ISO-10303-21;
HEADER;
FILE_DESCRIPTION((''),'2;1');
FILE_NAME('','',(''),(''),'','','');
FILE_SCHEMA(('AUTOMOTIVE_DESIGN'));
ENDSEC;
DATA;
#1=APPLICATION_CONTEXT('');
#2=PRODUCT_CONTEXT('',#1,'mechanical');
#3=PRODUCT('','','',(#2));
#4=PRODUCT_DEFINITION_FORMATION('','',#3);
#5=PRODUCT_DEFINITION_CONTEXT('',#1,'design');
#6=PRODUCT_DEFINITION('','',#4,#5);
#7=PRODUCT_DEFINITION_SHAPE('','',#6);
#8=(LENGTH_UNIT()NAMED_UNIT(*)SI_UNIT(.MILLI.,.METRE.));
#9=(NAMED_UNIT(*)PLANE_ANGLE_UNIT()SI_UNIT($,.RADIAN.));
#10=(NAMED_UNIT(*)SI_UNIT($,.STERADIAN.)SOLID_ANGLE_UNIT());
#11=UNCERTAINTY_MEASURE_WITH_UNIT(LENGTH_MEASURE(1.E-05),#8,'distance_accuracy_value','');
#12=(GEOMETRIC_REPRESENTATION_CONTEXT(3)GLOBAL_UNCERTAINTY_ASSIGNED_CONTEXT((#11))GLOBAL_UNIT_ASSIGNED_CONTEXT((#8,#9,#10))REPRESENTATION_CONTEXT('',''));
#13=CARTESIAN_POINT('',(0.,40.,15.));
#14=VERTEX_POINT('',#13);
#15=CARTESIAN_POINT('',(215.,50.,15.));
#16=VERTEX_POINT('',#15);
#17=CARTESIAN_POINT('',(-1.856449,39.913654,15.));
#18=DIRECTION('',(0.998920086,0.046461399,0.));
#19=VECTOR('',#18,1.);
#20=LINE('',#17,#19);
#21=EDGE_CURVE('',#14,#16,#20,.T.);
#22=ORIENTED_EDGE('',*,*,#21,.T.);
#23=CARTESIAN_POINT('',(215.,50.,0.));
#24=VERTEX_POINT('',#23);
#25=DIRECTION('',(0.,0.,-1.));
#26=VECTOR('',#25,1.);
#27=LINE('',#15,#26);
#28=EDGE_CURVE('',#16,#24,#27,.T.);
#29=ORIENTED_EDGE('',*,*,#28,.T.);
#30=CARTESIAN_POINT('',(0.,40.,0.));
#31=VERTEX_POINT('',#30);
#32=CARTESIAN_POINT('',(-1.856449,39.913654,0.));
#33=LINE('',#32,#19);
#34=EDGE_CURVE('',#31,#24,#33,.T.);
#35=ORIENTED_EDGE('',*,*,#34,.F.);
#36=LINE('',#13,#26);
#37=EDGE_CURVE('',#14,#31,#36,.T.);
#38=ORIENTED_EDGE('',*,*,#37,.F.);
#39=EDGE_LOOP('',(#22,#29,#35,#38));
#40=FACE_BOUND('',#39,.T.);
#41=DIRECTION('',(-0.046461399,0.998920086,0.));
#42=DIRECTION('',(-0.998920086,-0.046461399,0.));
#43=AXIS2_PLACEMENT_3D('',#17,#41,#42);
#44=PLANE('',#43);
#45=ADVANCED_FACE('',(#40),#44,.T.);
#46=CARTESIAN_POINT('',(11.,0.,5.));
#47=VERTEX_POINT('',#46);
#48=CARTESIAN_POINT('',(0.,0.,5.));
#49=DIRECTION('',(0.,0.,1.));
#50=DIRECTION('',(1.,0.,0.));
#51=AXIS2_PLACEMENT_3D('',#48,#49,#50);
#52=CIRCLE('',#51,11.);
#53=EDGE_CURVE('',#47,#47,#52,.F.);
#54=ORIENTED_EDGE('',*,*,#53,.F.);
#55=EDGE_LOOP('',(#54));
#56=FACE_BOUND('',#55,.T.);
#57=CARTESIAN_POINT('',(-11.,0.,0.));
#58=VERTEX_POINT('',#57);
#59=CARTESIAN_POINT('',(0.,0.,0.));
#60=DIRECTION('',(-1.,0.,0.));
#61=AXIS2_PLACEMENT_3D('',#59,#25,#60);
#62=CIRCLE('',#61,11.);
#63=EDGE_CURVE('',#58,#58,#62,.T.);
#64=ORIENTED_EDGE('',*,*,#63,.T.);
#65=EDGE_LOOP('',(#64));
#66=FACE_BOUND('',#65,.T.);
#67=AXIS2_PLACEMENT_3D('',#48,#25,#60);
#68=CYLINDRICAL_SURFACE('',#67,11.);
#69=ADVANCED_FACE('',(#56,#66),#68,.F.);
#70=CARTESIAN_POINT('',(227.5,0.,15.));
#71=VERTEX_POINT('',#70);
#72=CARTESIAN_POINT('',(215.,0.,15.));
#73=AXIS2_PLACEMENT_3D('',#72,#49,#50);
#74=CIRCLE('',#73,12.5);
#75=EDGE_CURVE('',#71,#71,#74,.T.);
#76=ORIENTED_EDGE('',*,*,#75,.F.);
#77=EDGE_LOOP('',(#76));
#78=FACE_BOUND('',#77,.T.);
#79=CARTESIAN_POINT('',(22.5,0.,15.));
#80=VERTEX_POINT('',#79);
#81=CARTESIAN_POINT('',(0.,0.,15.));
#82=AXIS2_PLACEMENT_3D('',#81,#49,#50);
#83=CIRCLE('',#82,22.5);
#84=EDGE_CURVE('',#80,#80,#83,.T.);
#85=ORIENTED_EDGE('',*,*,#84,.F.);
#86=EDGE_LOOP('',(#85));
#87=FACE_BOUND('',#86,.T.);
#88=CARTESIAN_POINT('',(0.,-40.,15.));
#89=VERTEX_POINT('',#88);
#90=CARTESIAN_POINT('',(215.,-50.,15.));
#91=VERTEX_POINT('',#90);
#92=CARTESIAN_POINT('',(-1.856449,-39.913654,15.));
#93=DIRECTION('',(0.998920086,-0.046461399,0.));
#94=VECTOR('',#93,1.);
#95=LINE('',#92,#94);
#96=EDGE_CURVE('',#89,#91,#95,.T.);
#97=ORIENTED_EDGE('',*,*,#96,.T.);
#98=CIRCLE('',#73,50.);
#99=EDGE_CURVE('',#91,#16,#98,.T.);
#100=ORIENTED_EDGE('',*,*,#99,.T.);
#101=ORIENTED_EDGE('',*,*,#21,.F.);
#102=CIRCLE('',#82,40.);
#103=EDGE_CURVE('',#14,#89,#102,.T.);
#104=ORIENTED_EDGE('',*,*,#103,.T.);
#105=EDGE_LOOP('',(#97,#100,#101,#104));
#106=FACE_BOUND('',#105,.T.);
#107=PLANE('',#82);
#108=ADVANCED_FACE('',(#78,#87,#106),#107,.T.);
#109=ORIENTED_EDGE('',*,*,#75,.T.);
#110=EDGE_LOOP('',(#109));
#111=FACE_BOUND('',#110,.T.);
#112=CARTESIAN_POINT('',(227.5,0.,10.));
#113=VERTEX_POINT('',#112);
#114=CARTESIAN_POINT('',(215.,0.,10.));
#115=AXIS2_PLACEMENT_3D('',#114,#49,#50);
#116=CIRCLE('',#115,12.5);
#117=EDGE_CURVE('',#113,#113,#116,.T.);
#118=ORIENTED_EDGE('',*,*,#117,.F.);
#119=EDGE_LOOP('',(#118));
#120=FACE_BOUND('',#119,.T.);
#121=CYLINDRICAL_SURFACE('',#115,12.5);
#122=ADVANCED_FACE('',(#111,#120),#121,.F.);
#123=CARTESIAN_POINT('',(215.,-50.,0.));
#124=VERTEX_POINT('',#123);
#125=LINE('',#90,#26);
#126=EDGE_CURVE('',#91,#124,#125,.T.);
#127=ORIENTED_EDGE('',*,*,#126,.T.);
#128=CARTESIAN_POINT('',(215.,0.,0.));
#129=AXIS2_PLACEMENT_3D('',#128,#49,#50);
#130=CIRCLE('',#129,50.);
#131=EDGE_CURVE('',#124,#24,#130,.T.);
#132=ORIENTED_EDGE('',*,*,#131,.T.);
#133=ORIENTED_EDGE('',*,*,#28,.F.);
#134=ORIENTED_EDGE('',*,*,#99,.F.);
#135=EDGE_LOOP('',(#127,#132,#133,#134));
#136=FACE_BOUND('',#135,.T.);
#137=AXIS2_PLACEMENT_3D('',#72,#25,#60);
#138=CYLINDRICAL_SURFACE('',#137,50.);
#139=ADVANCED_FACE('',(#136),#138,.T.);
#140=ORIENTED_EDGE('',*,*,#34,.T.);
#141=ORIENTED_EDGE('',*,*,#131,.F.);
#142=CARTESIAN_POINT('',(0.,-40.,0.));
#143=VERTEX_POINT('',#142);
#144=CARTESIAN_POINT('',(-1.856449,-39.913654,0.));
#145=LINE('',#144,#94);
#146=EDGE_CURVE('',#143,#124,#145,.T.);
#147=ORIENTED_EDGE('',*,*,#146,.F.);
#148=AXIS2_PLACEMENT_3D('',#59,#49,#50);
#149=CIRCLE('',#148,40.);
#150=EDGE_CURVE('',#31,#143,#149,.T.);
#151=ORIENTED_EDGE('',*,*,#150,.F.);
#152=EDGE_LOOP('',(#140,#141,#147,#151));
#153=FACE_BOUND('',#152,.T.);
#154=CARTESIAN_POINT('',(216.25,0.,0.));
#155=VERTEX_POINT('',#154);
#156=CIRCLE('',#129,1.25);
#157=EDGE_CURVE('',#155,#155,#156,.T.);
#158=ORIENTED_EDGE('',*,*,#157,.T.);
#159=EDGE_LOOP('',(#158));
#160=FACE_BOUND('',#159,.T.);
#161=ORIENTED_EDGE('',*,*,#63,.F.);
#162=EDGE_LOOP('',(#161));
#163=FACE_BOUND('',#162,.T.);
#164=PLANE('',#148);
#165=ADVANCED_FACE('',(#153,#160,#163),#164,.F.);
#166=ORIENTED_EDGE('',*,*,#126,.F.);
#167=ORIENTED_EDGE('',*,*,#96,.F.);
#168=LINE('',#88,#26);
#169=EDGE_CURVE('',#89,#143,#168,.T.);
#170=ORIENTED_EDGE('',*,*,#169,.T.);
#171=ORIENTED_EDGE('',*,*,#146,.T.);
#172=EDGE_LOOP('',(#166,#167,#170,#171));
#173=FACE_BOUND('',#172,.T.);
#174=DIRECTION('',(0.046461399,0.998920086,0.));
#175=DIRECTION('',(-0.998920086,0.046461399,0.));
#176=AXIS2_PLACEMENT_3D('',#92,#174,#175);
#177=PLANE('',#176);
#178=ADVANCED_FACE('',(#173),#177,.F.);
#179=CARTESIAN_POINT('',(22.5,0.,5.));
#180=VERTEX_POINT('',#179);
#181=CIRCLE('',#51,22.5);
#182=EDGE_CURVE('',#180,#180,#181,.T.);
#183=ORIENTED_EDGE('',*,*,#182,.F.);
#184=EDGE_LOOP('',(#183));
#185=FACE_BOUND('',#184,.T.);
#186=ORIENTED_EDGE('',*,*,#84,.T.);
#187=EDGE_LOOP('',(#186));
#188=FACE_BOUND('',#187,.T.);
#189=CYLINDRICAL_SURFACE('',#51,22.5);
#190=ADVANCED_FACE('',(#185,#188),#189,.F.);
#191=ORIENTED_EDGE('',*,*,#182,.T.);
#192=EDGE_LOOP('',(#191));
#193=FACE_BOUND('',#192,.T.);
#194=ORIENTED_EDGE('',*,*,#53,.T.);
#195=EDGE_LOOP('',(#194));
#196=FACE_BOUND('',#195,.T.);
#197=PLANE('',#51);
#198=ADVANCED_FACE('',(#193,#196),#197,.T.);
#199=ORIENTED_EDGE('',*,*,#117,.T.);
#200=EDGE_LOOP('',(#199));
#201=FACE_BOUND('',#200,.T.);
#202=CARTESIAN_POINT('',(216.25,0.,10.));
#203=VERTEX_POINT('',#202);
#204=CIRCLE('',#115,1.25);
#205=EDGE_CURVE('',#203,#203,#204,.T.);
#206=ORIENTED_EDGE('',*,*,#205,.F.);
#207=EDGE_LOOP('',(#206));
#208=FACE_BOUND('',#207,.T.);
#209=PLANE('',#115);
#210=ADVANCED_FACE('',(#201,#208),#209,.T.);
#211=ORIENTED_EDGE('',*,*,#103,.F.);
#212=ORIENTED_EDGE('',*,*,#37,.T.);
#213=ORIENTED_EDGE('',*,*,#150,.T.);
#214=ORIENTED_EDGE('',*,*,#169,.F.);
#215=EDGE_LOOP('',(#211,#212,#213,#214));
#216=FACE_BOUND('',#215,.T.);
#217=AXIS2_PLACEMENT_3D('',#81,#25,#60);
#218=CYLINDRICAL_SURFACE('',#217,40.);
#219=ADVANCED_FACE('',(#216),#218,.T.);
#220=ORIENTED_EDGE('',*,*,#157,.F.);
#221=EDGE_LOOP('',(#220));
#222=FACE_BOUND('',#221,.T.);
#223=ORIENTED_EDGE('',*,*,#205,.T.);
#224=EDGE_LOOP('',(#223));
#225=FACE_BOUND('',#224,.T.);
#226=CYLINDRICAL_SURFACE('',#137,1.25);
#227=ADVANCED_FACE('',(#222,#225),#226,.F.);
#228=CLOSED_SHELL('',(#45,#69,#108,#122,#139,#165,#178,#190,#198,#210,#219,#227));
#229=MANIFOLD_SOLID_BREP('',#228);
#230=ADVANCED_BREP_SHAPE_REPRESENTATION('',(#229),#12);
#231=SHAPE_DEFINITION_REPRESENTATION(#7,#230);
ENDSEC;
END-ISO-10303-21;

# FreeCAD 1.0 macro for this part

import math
import FreeCAD as App
import Part
import Sketcher

V = App.Vector

doc = App.newDocument("Part")
body = doc.addObject("PartDesign::Body", "Body")

sketch1 = body.newObject("Sketcher::SketchObject", "Sketch")
sketch1.AttachmentSupport = (doc.getObject("XY_Plane"), [""])
sketch1.MapMode = "FlatFace"
sketch1.addGeometry(Part.ArcOfCircle(Part.Circle(V(0, 0, 0), V(0, 0, 1), 40), math.radians(90), math.radians(270)), False)
sketch1.addGeometry(Part.LineSegment(V(0, -40, 0), V(215, -50, 0)), False)
sketch1.addGeometry(Part.ArcOfCircle(Part.Circle(V(215, 0, 0), V(0, 0, 1), 50), math.radians(-90), math.radians(90)), False)
sketch1.addGeometry(Part.LineSegment(V(215, 50, 0), V(0, 40, 0)), False)
sketch1.addGeometry(Part.Circle(V(0, 0, 0), V(0, 0, 1), 1.25), False)
sketch1.addGeometry(Part.Circle(V(215, 0, 0), V(0, 0, 1), 1.25), False)
sketch1.addConstraint(Sketcher.Constraint("Coincident", 0, 2, 1, 1))
sketch1.addConstraint(Sketcher.Constraint("Coincident", 1, 2, 2, 1))
sketch1.addConstraint(Sketcher.Constraint("Coincident", 2, 2, 3, 1))
sketch1.addConstraint(Sketcher.Constraint("Coincident", 3, 2, 0, 1))
sketch1.addConstraint(Sketcher.Constraint("Coincident", 0, 3, -1, 1))
sketch1.addConstraint(Sketcher.Constraint("Coincident", 4, 3, -1, 1))
sketch1.addConstraint(Sketcher.Constraint("Coincident", 5, 3, 2, 3))
sketch1.addConstraint(Sketcher.Constraint("Equal", 4, 5))
sketch1.addConstraint(Sketcher.Constraint("Symmetric", 1, 2, 2, 2, -1))
sketch1.addConstraint(Sketcher.Constraint("PointOnObject", 0, 2, -2))
sketch1.addConstraint(Sketcher.Constraint("PointOnObject", 3, 2, -2))
sketch1.addConstraint(Sketcher.Constraint("Vertical", 5, 3, 1, 2))
sketch1.addConstraint(Sketcher.Constraint("Radius", 0, 40.0))
sketch1.addConstraint(Sketcher.Constraint("Radius", 2, 50.0))
sketch1.addConstraint(Sketcher.Constraint("Diameter", 4, 2.5))
sketch1.addConstraint(Sketcher.Constraint("DistanceX", -1, 1, 2, 3, 215.0))
pad1 = body.newObject("PartDesign::Pad", "Pad")
pad1.Profile = sketch1
pad1.Length = 15

sketch2 = body.newObject("Sketcher::SketchObject", "Sketch001")
sketch2.AttachmentSupport = (doc.getObject("XY_Plane"), [""])
sketch2.MapMode = "FlatFace"
sketch2.addGeometry(Part.Circle(V(0, 0, 0), V(0, 0, 1), 11), False)
sketch2.addConstraint(Sketcher.Constraint("Coincident", 0, 3, -1, 1))
sketch2.addConstraint(Sketcher.Constraint("Diameter", 0, 22.0))
pocket1 = body.newObject("PartDesign::Pocket", "Pocket")
pocket1.Profile = sketch2
pocket1.Length = 5
pocket1.Reversed = True

sketch3 = body.newObject("Sketcher::SketchObject", "Sketch002")
sketch3.AttachmentSupport = (doc.getObject("XY_Plane"), [""])
sketch3.MapMode = "FlatFace"
sketch3.AttachmentOffset = App.Placement(V(0, 0, 15), App.Rotation())
sketch3.addGeometry(Part.Circle(V(215, 0, 0), V(0, 0, 1), 12.5), False)
sketch3.addConstraint(Sketcher.Constraint("PointOnObject", 0, 3, -1))
sketch3.addConstraint(Sketcher.Constraint("Diameter", 0, 25.0))
sketch3.addConstraint(Sketcher.Constraint("DistanceX", -1, 1, 0, 3, 215.0))
pocket2 = body.newObject("PartDesign::Pocket", "Pocket001")
pocket2.Profile = sketch3
pocket2.Length = 5

sketch4 = body.newObject("Sketcher::SketchObject", "Sketch003")
sketch4.AttachmentSupport = (doc.getObject("XY_Plane"), [""])
sketch4.MapMode = "FlatFace"
sketch4.AttachmentOffset = App.Placement(V(0, 0, 15), App.Rotation())
sketch4.addGeometry(Part.Circle(V(0, 0, 0), V(0, 0, 1), 22.5), False)
sketch4.addConstraint(Sketcher.Constraint("Coincident", 0, 3, -1, 1))
sketch4.addConstraint(Sketcher.Constraint("Diameter", 0, 45.0))
pocket3 = body.newObject("PartDesign::Pocket", "Pocket002")
pocket3.Profile = sketch4
pocket3.Length = 10

doc.recompute()
